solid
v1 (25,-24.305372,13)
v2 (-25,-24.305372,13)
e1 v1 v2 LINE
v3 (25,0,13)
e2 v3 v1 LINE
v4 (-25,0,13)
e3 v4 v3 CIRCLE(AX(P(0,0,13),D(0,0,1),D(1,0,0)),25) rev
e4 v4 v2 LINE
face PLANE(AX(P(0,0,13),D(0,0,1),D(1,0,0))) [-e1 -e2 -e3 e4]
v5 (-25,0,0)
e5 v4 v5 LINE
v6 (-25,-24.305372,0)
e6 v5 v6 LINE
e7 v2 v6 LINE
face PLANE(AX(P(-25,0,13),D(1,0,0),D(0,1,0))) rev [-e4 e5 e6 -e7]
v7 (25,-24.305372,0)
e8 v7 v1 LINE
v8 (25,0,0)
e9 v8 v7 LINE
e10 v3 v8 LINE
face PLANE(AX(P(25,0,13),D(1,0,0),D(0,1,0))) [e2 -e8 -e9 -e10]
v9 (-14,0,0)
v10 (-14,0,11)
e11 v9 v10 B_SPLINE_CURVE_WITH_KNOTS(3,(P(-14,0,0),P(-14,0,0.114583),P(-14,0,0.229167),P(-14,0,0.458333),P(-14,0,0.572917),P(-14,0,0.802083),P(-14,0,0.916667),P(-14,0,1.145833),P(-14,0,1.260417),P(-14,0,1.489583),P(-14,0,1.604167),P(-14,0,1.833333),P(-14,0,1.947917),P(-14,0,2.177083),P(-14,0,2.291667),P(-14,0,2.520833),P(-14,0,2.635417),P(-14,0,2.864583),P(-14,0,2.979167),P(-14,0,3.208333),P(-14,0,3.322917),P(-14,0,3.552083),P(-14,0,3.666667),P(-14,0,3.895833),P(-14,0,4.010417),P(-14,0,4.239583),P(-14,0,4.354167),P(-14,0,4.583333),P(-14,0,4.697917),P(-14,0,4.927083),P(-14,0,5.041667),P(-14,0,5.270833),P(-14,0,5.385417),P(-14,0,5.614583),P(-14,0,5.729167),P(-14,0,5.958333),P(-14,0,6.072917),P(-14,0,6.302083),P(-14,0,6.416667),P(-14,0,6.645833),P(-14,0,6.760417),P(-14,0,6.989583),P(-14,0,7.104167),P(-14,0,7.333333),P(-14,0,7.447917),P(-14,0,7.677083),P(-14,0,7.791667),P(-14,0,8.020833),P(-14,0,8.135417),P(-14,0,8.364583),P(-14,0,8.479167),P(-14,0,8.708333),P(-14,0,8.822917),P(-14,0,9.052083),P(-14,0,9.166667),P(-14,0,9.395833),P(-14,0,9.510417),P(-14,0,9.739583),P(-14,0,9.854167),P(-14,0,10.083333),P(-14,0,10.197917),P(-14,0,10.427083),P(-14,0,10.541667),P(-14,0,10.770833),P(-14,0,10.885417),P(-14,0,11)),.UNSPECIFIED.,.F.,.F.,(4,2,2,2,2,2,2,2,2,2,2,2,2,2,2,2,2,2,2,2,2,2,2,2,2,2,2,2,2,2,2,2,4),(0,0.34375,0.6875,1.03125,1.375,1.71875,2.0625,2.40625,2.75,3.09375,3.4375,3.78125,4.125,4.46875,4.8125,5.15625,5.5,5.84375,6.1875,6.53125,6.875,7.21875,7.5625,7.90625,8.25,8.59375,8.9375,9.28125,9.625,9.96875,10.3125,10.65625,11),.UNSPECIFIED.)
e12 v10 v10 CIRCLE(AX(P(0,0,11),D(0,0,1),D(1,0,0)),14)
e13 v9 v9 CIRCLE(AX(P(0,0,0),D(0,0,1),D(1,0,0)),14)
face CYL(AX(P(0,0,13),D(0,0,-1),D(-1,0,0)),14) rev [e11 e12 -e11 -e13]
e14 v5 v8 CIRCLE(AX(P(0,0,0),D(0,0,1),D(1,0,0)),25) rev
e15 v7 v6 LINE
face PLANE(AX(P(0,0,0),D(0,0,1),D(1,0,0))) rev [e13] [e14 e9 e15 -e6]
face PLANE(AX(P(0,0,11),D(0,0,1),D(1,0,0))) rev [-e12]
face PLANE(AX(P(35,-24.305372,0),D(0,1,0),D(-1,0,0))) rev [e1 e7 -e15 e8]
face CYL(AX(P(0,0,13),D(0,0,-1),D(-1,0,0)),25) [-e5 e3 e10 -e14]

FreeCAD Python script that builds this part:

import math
import FreeCAD as App
import Part
import Sketcher
from FreeCAD import Vector
Q = App.Units.Quantity


def add_polygon(sketch, points):
    """Adds a closed chain of lines whose ends are joined by coincident constraints."""
    first, n = sketch.GeometryCount, len(points)
    for a, b in zip(points, points[1:] + points[:1]):
        sketch.addGeometry(Part.LineSegment(App.Vector(*a, 0), App.Vector(*b, 0)), False)
    for i in range(n):
        sketch.addConstraint(Sketcher.Constraint("Coincident", first + i, 2, first + (i + 1) % n, 1))

doc = App.newDocument("Part")
body = doc.addObject("PartDesign::Body", "Body")

sketch1 = body.newObject("Sketcher::SketchObject", "Sketch")
sketch1.AttachmentSupport = (doc.getObject("XY_Plane"), [""])
sketch1.MapMode = "FlatFace"
sketch1.addGeometry([
    Part.ArcOfCircle(Part.Circle(Vector(0, 0, 0), Vector(0, 0, 1), 25), math.radians(0), math.radians(180)),
    Part.LineSegment(Vector(-25, 0, 0), Vector(-25, -32, 0)),
    Part.LineSegment(Vector(-25, -32, 0), Vector(25, -32, 0)),
    Part.LineSegment(Vector(25, -32, 0), Vector(25, 0, 0)),
    Part.Circle(Vector(0, 0, 0), Vector(0, 0, 1), 14),
], False)
sketch1.addConstraint([
    Sketcher.Constraint("Tangent", 0, 2, 1, 1),
    Sketcher.Constraint("Coincident", 1, 2, 2, 1),
    Sketcher.Constraint("Coincident", 2, 2, 3, 1),
    Sketcher.Constraint("Tangent", 3, 2, 0, 1),
    Sketcher.Constraint("Vertical", 1),
    Sketcher.Constraint("Horizontal", 2),
    Sketcher.Constraint("Vertical", 3),
    Sketcher.Constraint("Coincident", 0, 3, -1, 1),
    Sketcher.Constraint("Coincident", 4, 3, -1, 1),
    Sketcher.Constraint("Diameter", 4, Q("28 mm")),
    Sketcher.Constraint("Radius", 0, Q("25 mm")),
    Sketcher.Constraint("DistanceY", 1, 2, 1, 1, Q("32.475372 mm")),
])
pad1 = body.newObject("PartDesign::Pad", "Pad")
pad1.Profile = sketch1
pad1.Length = 13

sketch2 = body.newObject("Sketcher::SketchObject", "Sketch001")
sketch2.AttachmentSupport = (doc.getObject("XY_Plane"), [""])
sketch2.MapMode = "FlatFace"
sketch2.AttachmentOffset = App.Placement(Vector(0, 0, 11), App.Rotation())
sketch2.addGeometry(Part.Circle(Vector(0, 0, 0), Vector(0, 0, 1), 14), False)
sketch2.addConstraint([
    Sketcher.Constraint("Coincident", 0, 3, -1, 1),
    Sketcher.Constraint("Diameter", 0, Q("28 mm")),
])
pad2 = body.newObject("PartDesign::Pad", "Pad001")
pad2.Profile = sketch2
pad2.Length = 2

sketch3 = body.newObject("Sketcher::SketchObject", "Sketch002")
sketch3.AttachmentSupport = (doc.getObject("YZ_Plane"), [""])
sketch3.MapMode = "FlatFace"
sketch3.AttachmentOffset = App.Placement(Vector(0, 0, -25), App.Rotation())
add_polygon(sketch3, [(-24, 0), (-34, 0), (-34, 13), (-24, 13)])
sketch3.addConstraint([
    Sketcher.Constraint("Horizontal", 0),
    Sketcher.Constraint("Vertical", 1),
    Sketcher.Constraint("Horizontal", 2),
    Sketcher.Constraint("Vertical", 3),
    Sketcher.Constraint("PointOnObject", 0, 2, -1),
    Sketcher.Constraint("DistanceY", 1, 1, 1, 2, Q("13 mm")),
    Sketcher.Constraint("DistanceX", 0, 2, 0, 1, Q("10.015893 mm")),
    Sketcher.Constraint("DistanceX", 0, 2, -1, 1, Q("34.321265 mm")),
])
pocket1 = body.newObject("PartDesign::Pocket", "Pocket")
pocket1.Profile = sketch3
pocket1.Length = 60
pocket1.Reversed = True

doc.recompute()
